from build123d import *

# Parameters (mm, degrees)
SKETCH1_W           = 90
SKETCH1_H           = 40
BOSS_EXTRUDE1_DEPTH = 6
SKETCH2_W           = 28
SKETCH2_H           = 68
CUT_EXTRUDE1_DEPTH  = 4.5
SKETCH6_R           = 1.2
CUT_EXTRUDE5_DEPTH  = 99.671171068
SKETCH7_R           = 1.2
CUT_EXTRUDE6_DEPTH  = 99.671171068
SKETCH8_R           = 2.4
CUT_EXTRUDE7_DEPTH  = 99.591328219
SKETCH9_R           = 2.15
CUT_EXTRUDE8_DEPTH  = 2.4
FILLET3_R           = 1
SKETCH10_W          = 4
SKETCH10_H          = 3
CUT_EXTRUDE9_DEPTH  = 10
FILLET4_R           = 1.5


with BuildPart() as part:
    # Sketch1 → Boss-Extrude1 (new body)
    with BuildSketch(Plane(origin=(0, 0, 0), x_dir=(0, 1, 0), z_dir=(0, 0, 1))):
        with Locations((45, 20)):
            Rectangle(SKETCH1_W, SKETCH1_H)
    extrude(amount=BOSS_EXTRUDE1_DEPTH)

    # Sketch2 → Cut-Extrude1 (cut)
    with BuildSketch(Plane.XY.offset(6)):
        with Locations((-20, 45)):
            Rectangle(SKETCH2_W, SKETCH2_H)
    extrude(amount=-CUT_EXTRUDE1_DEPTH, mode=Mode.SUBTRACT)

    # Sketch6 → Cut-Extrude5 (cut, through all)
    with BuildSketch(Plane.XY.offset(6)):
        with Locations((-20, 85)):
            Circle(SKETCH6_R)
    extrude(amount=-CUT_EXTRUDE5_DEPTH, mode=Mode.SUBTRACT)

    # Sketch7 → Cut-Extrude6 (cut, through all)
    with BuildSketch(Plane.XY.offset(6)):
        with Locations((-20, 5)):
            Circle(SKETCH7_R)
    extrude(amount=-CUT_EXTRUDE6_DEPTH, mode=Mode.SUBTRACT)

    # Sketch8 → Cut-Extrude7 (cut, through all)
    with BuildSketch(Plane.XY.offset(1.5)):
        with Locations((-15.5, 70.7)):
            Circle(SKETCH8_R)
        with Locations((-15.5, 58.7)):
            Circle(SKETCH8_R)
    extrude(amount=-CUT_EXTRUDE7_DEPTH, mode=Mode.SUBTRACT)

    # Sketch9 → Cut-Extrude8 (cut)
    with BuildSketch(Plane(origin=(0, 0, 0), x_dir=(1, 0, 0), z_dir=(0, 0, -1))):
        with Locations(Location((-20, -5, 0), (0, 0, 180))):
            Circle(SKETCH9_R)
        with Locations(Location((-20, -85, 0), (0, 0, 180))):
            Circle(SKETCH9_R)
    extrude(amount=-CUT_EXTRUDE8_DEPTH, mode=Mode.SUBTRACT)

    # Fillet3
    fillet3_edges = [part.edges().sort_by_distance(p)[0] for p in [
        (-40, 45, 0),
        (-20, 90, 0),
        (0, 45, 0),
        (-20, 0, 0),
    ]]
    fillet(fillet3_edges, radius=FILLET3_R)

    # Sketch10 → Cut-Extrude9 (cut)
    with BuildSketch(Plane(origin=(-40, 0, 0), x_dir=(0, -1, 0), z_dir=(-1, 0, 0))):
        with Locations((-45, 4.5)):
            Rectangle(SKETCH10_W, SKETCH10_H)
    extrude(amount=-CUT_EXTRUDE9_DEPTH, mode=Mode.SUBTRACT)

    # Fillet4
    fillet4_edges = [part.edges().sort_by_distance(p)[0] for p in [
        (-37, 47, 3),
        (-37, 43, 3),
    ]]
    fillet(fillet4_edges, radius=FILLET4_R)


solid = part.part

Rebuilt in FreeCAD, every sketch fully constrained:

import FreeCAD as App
import Part
import Sketcher


def edges_at(feature, points):
    """Names of the edges that pass closest to the given points."""
    edges = feature.Shape.Edges
    near = lambda p: min(range(len(edges)), key=lambda i: edges[i].distToShape(Part.Vertex(*p))[0])
    return sorted({f"Edge{near(p) + 1}" for p in points})

doc = App.newDocument("Part")
body = doc.addObject("PartDesign::Body", "Body")

# Sketch on XY plane
sketch1 = body.newObject("Sketcher::SketchObject", "Sketch")
sketch1.AttachmentSupport = (doc.getObject("XY_Plane"), [""])
sketch1.MapMode = "FlatFace"
sketch1.addGeometry([
    Part.LineSegment(App.Vector(-40, 0, 0), App.Vector(0, 0, 0)),
    Part.LineSegment(App.Vector(0, 0, 0), App.Vector(0, 90, 0)),
    Part.LineSegment(App.Vector(0, 90, 0), App.Vector(-40, 90, 0)),
    Part.LineSegment(App.Vector(-40, 90, 0), App.Vector(-40, 0, 0)),
], False)
sketch1.addConstraint([
    Sketcher.Constraint("Coincident", 0, 2, 1, 1),
    Sketcher.Constraint("Coincident", 1, 2, 2, 1),
    Sketcher.Constraint("Coincident", 2, 2, 3, 1),
    Sketcher.Constraint("Coincident", 3, 2, 0, 1),
    Sketcher.Constraint("Horizontal", 0),
    Sketcher.Constraint("Vertical", 1),
    Sketcher.Constraint("Horizontal", 2),
    Sketcher.Constraint("Vertical", 3),
    Sketcher.Constraint("Coincident", 0, 2, -1, 1),
    Sketcher.Constraint("DistanceX", 0, 1, 0, 2, 40.0),
    Sketcher.Constraint("DistanceY", 1, 1, 1, 2, 90.0),
])
pad1 = body.newObject("PartDesign::Pad", "Pad")
pad1.Profile = sketch1
pad1.Length = 6

# Sketch on XY plane
sketch2 = body.newObject("Sketcher::SketchObject", "Sketch001")
sketch2.AttachmentSupport = (doc.getObject("XY_Plane"), [""])
sketch2.MapMode = "FlatFace"
sketch2.AttachmentOffset = App.Placement(App.Vector(0, 0, 6), App.Rotation())
sketch2.addGeometry([
    Part.LineSegment(App.Vector(-34, 79, 0), App.Vector(-34, 11, 0)),
    Part.LineSegment(App.Vector(-34, 11, 0), App.Vector(-6, 11, 0)),
    Part.LineSegment(App.Vector(-6, 11, 0), App.Vector(-6, 79, 0)),
    Part.LineSegment(App.Vector(-6, 79, 0), App.Vector(-34, 79, 0)),
], False)
sketch2.addConstraint([
    Sketcher.Constraint("Coincident", 0, 2, 1, 1),
    Sketcher.Constraint("Coincident", 1, 2, 2, 1),
    Sketcher.Constraint("Coincident", 2, 2, 3, 1),
    Sketcher.Constraint("Coincident", 3, 2, 0, 1),
    Sketcher.Constraint("Vertical", 0),
    Sketcher.Constraint("Horizontal", 1),
    Sketcher.Constraint("Vertical", 2),
    Sketcher.Constraint("Horizontal", 3),
    Sketcher.Constraint("DistanceX", 1, 1, 1, 2, 28.0),
    Sketcher.Constraint("DistanceY", 0, 2, 0, 1, 68.0),
    Sketcher.Constraint("DistanceX", 0, 2, -1, 1, 34.0),
    Sketcher.Constraint("DistanceY", -1, 1, 0, 2, 11.0),
])
pocket1 = body.newObject("PartDesign::Pocket", "Pocket")
pocket1.Profile = sketch2
pocket1.Length = 4.5

# Sketch on XY plane
sketch3 = body.newObject("Sketcher::SketchObject", "Sketch002")
sketch3.AttachmentSupport = (doc.getObject("XY_Plane"), [""])
sketch3.MapMode = "FlatFace"
sketch3.AttachmentOffset = App.Placement(App.Vector(0, 0, 6), App.Rotation())
sketch3.addGeometry(Part.Circle(App.Vector(-20, 85, 0), App.Vector(0, 0, 1), 1.2), False)
sketch3.addConstraint([
    Sketcher.Constraint("Diameter", 0, 2.4),
    Sketcher.Constraint("DistanceX", 0, 3, -1, 1, 20.0),
    Sketcher.Constraint("DistanceY", -1, 1, 0, 3, 85.0),
])
pocket2 = body.newObject("PartDesign::Pocket", "Pocket001")
pocket2.Profile = sketch3
pocket2.Type = "ThroughAll"

# Sketch on XY plane
sketch4 = body.newObject("Sketcher::SketchObject", "Sketch003")
sketch4.AttachmentSupport = (doc.getObject("XY_Plane"), [""])
sketch4.MapMode = "FlatFace"
sketch4.AttachmentOffset = App.Placement(App.Vector(0, 0, 6), App.Rotation())
sketch4.addGeometry(Part.Circle(App.Vector(-20, 5, 0), App.Vector(0, 0, 1), 1.2), False)
sketch4.addConstraint([
    Sketcher.Constraint("Diameter", 0, 2.4),
    Sketcher.Constraint("DistanceX", 0, 3, -1, 1, 20.0),
    Sketcher.Constraint("DistanceY", -1, 1, 0, 3, 5.0),
])
pocket3 = body.newObject("PartDesign::Pocket", "Pocket002")
pocket3.Profile = sketch4
pocket3.Type = "ThroughAll"

# Sketch on XY plane
sketch5 = body.newObject("Sketcher::SketchObject", "Sketch004")
sketch5.AttachmentSupport = (doc.getObject("XY_Plane"), [""])
sketch5.MapMode = "FlatFace"
sketch5.AttachmentOffset = App.Placement(App.Vector(0, 0, 1.5), App.Rotation())
sketch5.addGeometry([
    Part.Circle(App.Vector(-15.5, 70.7, 0), App.Vector(0, 0, 1), 2.4),
    Part.Circle(App.Vector(-15.5, 58.7, 0), App.Vector(0, 0, 1), 2.4),
], False)
sketch5.addConstraint([
    Sketcher.Constraint("Equal", 0, 1),
    Sketcher.Constraint("Vertical", 0, 3, 1, 3),
    Sketcher.Constraint("Diameter", 0, 4.8),
    Sketcher.Constraint("DistanceY", 1, 3, 0, 3, 12.0),
    Sketcher.Constraint("DistanceX", 0, 3, -1, 1, 15.5),
    Sketcher.Constraint("DistanceY", -1, 1, 0, 3, 70.7),
])
pocket4 = body.newObject("PartDesign::Pocket", "Pocket003")
pocket4.Profile = sketch5
pocket4.Type = "ThroughAll"

# Sketch on XY plane
sketch6 = body.newObject("Sketcher::SketchObject", "Sketch005")
sketch6.AttachmentSupport = (doc.getObject("XY_Plane"), [""])
sketch6.MapMode = "FlatFace"
sketch6.addGeometry([
    Part.Circle(App.Vector(-20, 5, 0), App.Vector(0, 0, 1), 2.1),
    Part.Circle(App.Vector(-20, 85, 0), App.Vector(0, 0, 1), 2.1),
], False)
sketch6.addConstraint([
    Sketcher.Constraint("Equal", 0, 1),
    Sketcher.Constraint("Vertical", 0, 3, 1, 3),
    Sketcher.Constraint("Diameter", 0, 4.3),
    Sketcher.Constraint("DistanceX", 0, 3, -1, 1, 20.0),
    Sketcher.Constraint("DistanceY", -1, 1, 0, 3, 5.0),
    Sketcher.Constraint("DistanceY", -1, 1, 1, 3, 85.0),
])
pocket5 = body.newObject("PartDesign::Pocket", "Pocket004")
pocket5.Profile = sketch6
pocket5.Length = 2.4
pocket5.Reversed = True
doc.recompute()

fillet = body.newObject("PartDesign::Fillet", "Fillet")
fillet.Base = (pocket5, edges_at(pocket5, [
    (-40, 45, 0),
    (-20, 90, 0),
    (0, 45, 0),
    (-20, 0, 0),
]))
fillet.Radius = 1

# Sketch on YZ plane
sketch7 = body.newObject("Sketcher::SketchObject", "Sketch006")
sketch7.AttachmentSupport = (doc.getObject("YZ_Plane"), [""])
sketch7.MapMode = "FlatFace"
sketch7.AttachmentOffset = App.Placement(App.Vector(0, 0, -40), App.Rotation())
sketch7.addGeometry([
    Part.LineSegment(App.Vector(47, 6, 0), App.Vector(47, 3, 0)),
    Part.LineSegment(App.Vector(47, 3, 0), App.Vector(43, 3, 0)),
    Part.LineSegment(App.Vector(43, 3, 0), App.Vector(43, 6, 0)),
    Part.LineSegment(App.Vector(43, 6, 0), App.Vector(47, 6, 0)),
], False)
sketch7.addConstraint([
    Sketcher.Constraint("Coincident", 0, 2, 1, 1),
    Sketcher.Constraint("Coincident", 1, 2, 2, 1),
    Sketcher.Constraint("Coincident", 2, 2, 3, 1),
    Sketcher.Constraint("Coincident", 3, 2, 0, 1),
    Sketcher.Constraint("Vertical", 0),
    Sketcher.Constraint("Horizontal", 1),
    Sketcher.Constraint("Vertical", 2),
    Sketcher.Constraint("Horizontal", 3),
    Sketcher.Constraint("DistanceX", 1, 2, 1, 1, 4.0),
    Sketcher.Constraint("DistanceY", 0, 2, 0, 1, 3.0),
    Sketcher.Constraint("DistanceX", -1, 1, 0, 2, 47.0),
    Sketcher.Constraint("DistanceY", -1, 1, 0, 2, 3.0),
])
pocket6 = body.newObject("PartDesign::Pocket", "Pocket005")
pocket6.Profile = sketch7
pocket6.Length = 10
pocket6.Reversed = True
doc.recompute()

fillet2 = body.newObject("PartDesign::Fillet", "Fillet001")
fillet2.Base = (pocket6, edges_at(pocket6, [(-37, 47, 3), (-37, 43, 3)]))
fillet2.Radius = 1.5

doc.recompute()
